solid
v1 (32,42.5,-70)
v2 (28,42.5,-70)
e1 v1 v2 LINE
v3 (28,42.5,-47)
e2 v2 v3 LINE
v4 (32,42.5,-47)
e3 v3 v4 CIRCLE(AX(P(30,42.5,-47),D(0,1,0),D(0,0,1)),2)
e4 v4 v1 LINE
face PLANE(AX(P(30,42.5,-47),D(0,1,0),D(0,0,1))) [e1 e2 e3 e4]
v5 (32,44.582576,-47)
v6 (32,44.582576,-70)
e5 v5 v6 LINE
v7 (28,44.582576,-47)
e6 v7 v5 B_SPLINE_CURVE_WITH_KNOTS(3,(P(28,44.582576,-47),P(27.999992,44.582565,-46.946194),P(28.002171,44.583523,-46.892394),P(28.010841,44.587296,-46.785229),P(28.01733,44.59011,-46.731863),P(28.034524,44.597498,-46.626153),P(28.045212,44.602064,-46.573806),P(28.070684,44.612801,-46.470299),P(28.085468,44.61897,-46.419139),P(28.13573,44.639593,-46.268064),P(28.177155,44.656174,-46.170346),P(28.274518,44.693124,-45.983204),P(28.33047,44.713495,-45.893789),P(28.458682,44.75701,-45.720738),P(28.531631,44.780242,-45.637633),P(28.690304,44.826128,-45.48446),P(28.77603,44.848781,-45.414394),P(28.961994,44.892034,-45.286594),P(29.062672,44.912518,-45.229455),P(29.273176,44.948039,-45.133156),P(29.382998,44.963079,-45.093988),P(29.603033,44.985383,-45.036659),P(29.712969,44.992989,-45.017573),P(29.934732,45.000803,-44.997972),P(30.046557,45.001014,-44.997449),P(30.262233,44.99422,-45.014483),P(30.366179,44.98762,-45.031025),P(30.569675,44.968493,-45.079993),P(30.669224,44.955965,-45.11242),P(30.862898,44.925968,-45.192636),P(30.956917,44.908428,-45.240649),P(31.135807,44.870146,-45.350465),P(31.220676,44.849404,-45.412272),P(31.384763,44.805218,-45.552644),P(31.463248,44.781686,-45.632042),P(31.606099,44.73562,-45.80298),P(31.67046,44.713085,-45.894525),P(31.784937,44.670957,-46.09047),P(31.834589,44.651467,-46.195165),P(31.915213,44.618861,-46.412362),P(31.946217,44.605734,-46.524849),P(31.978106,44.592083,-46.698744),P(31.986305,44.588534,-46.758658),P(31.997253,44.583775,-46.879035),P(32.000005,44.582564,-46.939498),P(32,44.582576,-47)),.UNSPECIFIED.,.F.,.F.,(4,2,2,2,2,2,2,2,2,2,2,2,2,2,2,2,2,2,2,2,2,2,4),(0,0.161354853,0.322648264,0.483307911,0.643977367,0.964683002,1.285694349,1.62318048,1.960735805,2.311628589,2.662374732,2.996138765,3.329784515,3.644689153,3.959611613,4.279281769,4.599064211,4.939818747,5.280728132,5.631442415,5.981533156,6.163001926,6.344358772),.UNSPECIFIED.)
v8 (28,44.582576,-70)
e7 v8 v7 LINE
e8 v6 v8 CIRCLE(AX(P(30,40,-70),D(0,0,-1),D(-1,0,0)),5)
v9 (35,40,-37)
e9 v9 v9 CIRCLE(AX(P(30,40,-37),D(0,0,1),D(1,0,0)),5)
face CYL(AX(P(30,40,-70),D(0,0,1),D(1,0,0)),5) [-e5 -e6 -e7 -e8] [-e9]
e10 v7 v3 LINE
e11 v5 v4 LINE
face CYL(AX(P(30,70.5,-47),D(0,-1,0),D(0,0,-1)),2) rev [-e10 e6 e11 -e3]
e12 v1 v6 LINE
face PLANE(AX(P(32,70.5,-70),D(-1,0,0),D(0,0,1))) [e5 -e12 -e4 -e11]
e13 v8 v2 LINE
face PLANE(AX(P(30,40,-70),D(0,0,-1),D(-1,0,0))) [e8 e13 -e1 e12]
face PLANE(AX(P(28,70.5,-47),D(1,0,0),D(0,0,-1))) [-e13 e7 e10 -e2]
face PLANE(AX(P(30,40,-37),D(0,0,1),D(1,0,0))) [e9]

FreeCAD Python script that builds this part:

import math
import FreeCAD as App
import Part
import Sketcher
Q = App.Units.Quantity


def edges_at(feature, points):
    """Names of the edges that pass closest to the given points."""
    edges = feature.Shape.Edges
    near = lambda p: min(range(len(edges)), key=lambda i: edges[i].distToShape(Part.Vertex(*p))[0])
    return sorted({f"Edge{near(p) + 1}" for p in points})

doc = App.newDocument("Part")
params = doc.addObject("Spreadsheet::Sheet", "Params")
for row, (alias, value) in enumerate([
    ("sketch1_width", "60 mm"),
    ("pad1_length", "42 mm"),
    ("fillet_radius", "5 mm"),
    ("fillet2_radius", "5 mm"),
    ("sketch2_width", "60 mm"),
    ("pad2_length", "38 mm"),
    ("fillet3_radius", "5 mm"),
    ("sketch3_diameter", "4.5 mm"),
    ("pocket1_length", "10 mm"),
    ("sketch4_diameter", "24 mm"),
    ("pad3_length", "4 mm"),
    ("sketch5_diameter", "10 mm"),
    ("pad4_length", "28 mm"),
    ("sketch6_radius", "2 mm"),
    ("sketch6_height", "23 mm"),
    ("pocket2_length", "28 mm"),
    ("pad5_length", "84 mm"),
    ("sketch8_diameter", "10 mm"),
    ("pad6_length", "5 mm"),
], start=1):
    params.set(f"A{row}", alias)
    params.set(f"B{row}", "=" + value)
    params.setAlias(f"B{row}", alias)

body = doc.addObject("PartDesign::Body", "Body")

# Sketch on XY plane
sketch1 = body.newObject("Sketcher::SketchObject", "Sketch")
sketch1.AttachmentSupport = (doc.getObject("XY_Plane"), [""])
sketch1.MapMode = "FlatFace"
sketch1.addGeometry([
    Part.LineSegment(App.Vector(0, 60, 0), App.Vector(0, 0, 0)),
    Part.LineSegment(App.Vector(0, 0, 0), App.Vector(60, 0, 0)),
    Part.LineSegment(App.Vector(60, 0, 0), App.Vector(60, 60, 0)),
    Part.LineSegment(App.Vector(60, 60, 0), App.Vector(0, 60, 0)),
], False)
sketch1.addConstraint([
    Sketcher.Constraint("Coincident", 0, 2, 1, 1),
    Sketcher.Constraint("Coincident", 1, 2, 2, 1),
    Sketcher.Constraint("Coincident", 2, 2, 3, 1),
    Sketcher.Constraint("Coincident", 3, 2, 0, 1),
    Sketcher.Constraint("Vertical", 0),
    Sketcher.Constraint("Horizontal", 1),
    Sketcher.Constraint("Vertical", 2),
    Sketcher.Constraint("Horizontal", 3),
    Sketcher.Constraint("Coincident", 0, 2, -1, 1),
    Sketcher.Constraint("Equal", 3, 0),
    Sketcher.Constraint("DistanceX", 1, 1, 1, 2, Q("60 mm")),
])
sketch1.setExpression("Constraints[10]", "Params.sketch1_width")
pad1 = body.newObject("PartDesign::Pad", "Pad")
pad1.Profile = sketch1
pad1.setExpression("Length", "Params.pad1_length")
doc.recompute()

fillet = body.newObject("PartDesign::Fillet", "Fillet")
fillet.Base = (pad1, edges_at(pad1, [
    (0, 60, 21),
    (60, 60, 21),
    (60, 0, 21),
    (0, 0, 21),
]))
fillet.setExpression("Radius", "Params.fillet_radius")
doc.recompute()

fillet2 = body.newObject("PartDesign::Fillet", "Fillet001")
fillet2.Base = (fillet, edges_at(fillet, [
    (30, 0, 42),
    (0, 30, 42),
    (60, 30, 42),
    (30, 60, 42),
    (58.536, 58.536, 42),
    (1.464, 58.536, 42),
    (58.536, 1.464, 42),
    (1.464, 1.464, 42),
]))
fillet2.setExpression("Radius", "Params.fillet2_radius")
body2 = doc.addObject("PartDesign::Body", "Body001")

# Sketch on XY plane
sketch2 = body2.newObject("Sketcher::SketchObject", "Sketch001")
sketch2.AttachmentSupport = (doc.getObject("XY_Plane001"), [""])
sketch2.MapMode = "FlatFace"
sketch2.addGeometry([
    Part.LineSegment(App.Vector(60, 60, 0), App.Vector(60, 0, 0)),
    Part.LineSegment(App.Vector(60, 0, 0), App.Vector(0, 0, 0)),
    Part.LineSegment(App.Vector(0, 0, 0), App.Vector(0, 60, 0)),
    Part.LineSegment(App.Vector(0, 60, 0), App.Vector(60, 60, 0)),
], False)
sketch2.addConstraint([
    Sketcher.Constraint("Coincident", 0, 2, 1, 1),
    Sketcher.Constraint("Coincident", 1, 2, 2, 1),
    Sketcher.Constraint("Coincident", 2, 2, 3, 1),
    Sketcher.Constraint("Coincident", 3, 2, 0, 1),
    Sketcher.Constraint("Vertical", 0),
    Sketcher.Constraint("Horizontal", 1),
    Sketcher.Constraint("Vertical", 2),
    Sketcher.Constraint("Horizontal", 3),
    Sketcher.Constraint("Coincident", 1, 2, -1, 1),
    Sketcher.Constraint("Equal", 3, 0),
    Sketcher.Constraint("DistanceX", 1, 2, 1, 1, Q("60 mm")),
])
sketch2.setExpression("Constraints[10]", "Params.sketch2_width")
pad2 = body2.newObject("PartDesign::Pad", "Pad001")
pad2.Profile = sketch2
pad2.setExpression("Length", "Params.pad2_length")
pad2.Reversed = True
doc.recompute()

fillet3 = body2.newObject("PartDesign::Fillet", "Fillet002")
fillet3.Base = (pad2, edges_at(pad2, [
    (60, 0, -19),
    (60, 60, -19),
    (0, 60, -19),
    (0, 0, -19),
]))
fillet3.setExpression("Radius", "Params.fillet3_radius")

# Sketch on XY plane
sketch3 = body2.newObject("Sketcher::SketchObject", "Sketch002")
sketch3.AttachmentSupport = (doc.getObject("XY_Plane001"), [""])
sketch3.MapMode = "FlatFace"
sketch3.AttachmentOffset = App.Placement(App.Vector(0, 0, -38), App.Rotation())
sketch3.addGeometry([
    Part.Circle(App.Vector(5.3, 54.7, 0), App.Vector(0, 0, 1), 2.2),
    Part.Circle(App.Vector(54.7, 54.7, 0), App.Vector(0, 0, 1), 2.2),
    Part.Circle(App.Vector(54.7, 5.3, 0), App.Vector(0, 0, 1), 2.2),
    Part.Circle(App.Vector(5.3, 5.3, 0), App.Vector(0, 0, 1), 2.2),
], False)
sketch3.addConstraint([
    Sketcher.Constraint("Equal", 0, 1),
    Sketcher.Constraint("Equal", 1, 2),
    Sketcher.Constraint("Equal", 2, 3),
    Sketcher.Constraint("Horizontal", 0, 3, 1, 3),
    Sketcher.Constraint("Horizontal", 2, 3, 3, 3),
    Sketcher.Constraint("Vertical", 1, 3, 2, 3),
    Sketcher.Constraint("Vertical", 0, 3, 3, 3),
    Sketcher.Constraint("Diameter", 0, Q("4.5 mm")),
    Sketcher.Constraint("DistanceX", -1, 1, 0, 3, Q("5.251263 mm")),
    Sketcher.Constraint("DistanceY", -1, 1, 0, 3, Q("54.748737 mm")),
    Sketcher.Constraint("DistanceX", -1, 1, 1, 3, Q("54.748737 mm")),
    Sketcher.Constraint("DistanceY", -1, 1, 2, 3, Q("5.251263 mm")),
])
sketch3.setExpression("Constraints[7]", "Params.sketch3_diameter")
pocket1 = body2.newObject("PartDesign::Pocket", "Pocket")
pocket1.Profile = sketch3
pocket1.setExpression("Length", "Params.pocket1_length")
pocket1.Reversed = True

# Sketch on XY plane
sketch4 = body2.newObject("Sketcher::SketchObject", "Sketch003")
sketch4.AttachmentSupport = (doc.getObject("XY_Plane001"), [""])
sketch4.MapMode = "FlatFace"
sketch4.AttachmentOffset = App.Placement(App.Vector(0, 0, -38), App.Rotation())
sketch4.addGeometry(Part.Circle(App.Vector(30, 40, 0), App.Vector(0, 0, 1), 12), False)
sketch4.addConstraint([
    Sketcher.Constraint("Diameter", 0, Q("24 mm")),
    Sketcher.Constraint("DistanceX", -1, 1, 0, 3, Q("30 mm")),
    Sketcher.Constraint("DistanceY", -1, 1, 0, 3, Q("40 mm")),
])
sketch4.setExpression("Constraints[0]", "Params.sketch4_diameter")
pad3 = body2.newObject("PartDesign::Pad", "Pad002")
pad3.Profile = sketch4
pad3.setExpression("Length", "Params.pad3_length")
pad3.Reversed = True

# Sketch on XY plane
sketch5 = body2.newObject("Sketcher::SketchObject", "Sketch004")
sketch5.AttachmentSupport = (doc.getObject("XY_Plane001"), [""])
sketch5.MapMode = "FlatFace"
sketch5.AttachmentOffset = App.Placement(App.Vector(0, 0, -42), App.Rotation())
sketch5.addGeometry(Part.Circle(App.Vector(30, 40, 0), App.Vector(0, 0, 1), 5), False)
sketch5.addConstraint([
    Sketcher.Constraint("Diameter", 0, Q("10 mm")),
    Sketcher.Constraint("DistanceX", -1, 1, 0, 3, Q("30 mm")),
    Sketcher.Constraint("DistanceY", -1, 1, 0, 3, Q("40 mm")),
])
sketch5.setExpression("Constraints[0]", "Params.sketch5_diameter")
pad4 = body2.newObject("PartDesign::Pad", "Pad003")
pad4.Profile = sketch5
pad4.setExpression("Length", "Params.pad4_length")
pad4.Reversed = True

# Sketch on XZ plane
sketch6 = body2.newObject("Sketcher::SketchObject", "Sketch005")
sketch6.AttachmentSupport = (doc.getObject("XZ_Plane001"), [""])
sketch6.MapMode = "FlatFace"
sketch6.AttachmentOffset = App.Placement(App.Vector(0, 0, -42.5), App.Rotation())
sketch6.addGeometry([
    Part.LineSegment(App.Vector(28, -70, 0), App.Vector(28, -47, 0)),
    Part.ArcOfCircle(Part.Circle(App.Vector(30, -47, 0), App.Vector(0, 0, 1), 2), math.radians(0), math.radians(180)),
    Part.LineSegment(App.Vector(32, -47, 0), App.Vector(32, -70, 0)),
    Part.LineSegment(App.Vector(32, -70, 0), App.Vector(28, -70, 0)),
], False)
sketch6.addConstraint([
    Sketcher.Constraint("Tangent", 0, 2, 1, 2),
    Sketcher.Constraint("Tangent", 1, 1, 2, 1),
    Sketcher.Constraint("Coincident", 2, 2, 3, 1),
    Sketcher.Constraint("Coincident", 3, 2, 0, 1),
    Sketcher.Constraint("Vertical", 0),
    Sketcher.Constraint("Vertical", 2),
    Sketcher.Constraint("Horizontal", 3),
    Sketcher.Constraint("Radius", 1, Q("2 mm")),
    Sketcher.Constraint("DistanceY", 0, 1, 0, 2, Q("23 mm")),
    Sketcher.Constraint("DistanceX", -1, 1, 1, 3, Q("30 mm")),
    Sketcher.Constraint("DistanceY", 1, 3, -1, 1, Q("47 mm")),
])
sketch6.setExpression("Constraints[7]", "Params.sketch6_radius")
sketch6.setExpression("Constraints[8]", "Params.sketch6_height")
pocket2 = body2.newObject("PartDesign::Pocket", "Pocket001")
pocket2.Profile = sketch6
pocket2.setExpression("Length", "Params.pocket2_length")
body3 = doc.addObject("PartDesign::Body", "Body002")

# Sketch on XY plane
sketch7 = body3.newObject("Sketcher::SketchObject", "Sketch006")
sketch7.AttachmentSupport = (doc.getObject("XY_Plane002"), [""])
sketch7.MapMode = "FlatFace"
sketch7.AttachmentOffset = App.Placement(App.Vector(0, 0, -42), App.Rotation())
sketch7.addGeometry([
    Part.LineSegment(App.Vector(75, 69, 0), App.Vector(75, -7, 0)),
    Part.LineSegment(App.Vector(75, -7, 0), App.Vector(-8, -7, 0)),
    Part.LineSegment(App.Vector(-8, -7, 0), App.Vector(-8, 69, 0)),
    Part.LineSegment(App.Vector(-8, 69, 0), App.Vector(75, 69, 0)),
], False)
sketch7.addConstraint([
    Sketcher.Constraint("Coincident", 0, 2, 1, 1),
    Sketcher.Constraint("Coincident", 1, 2, 2, 1),
    Sketcher.Constraint("Coincident", 2, 2, 3, 1),
    Sketcher.Constraint("Coincident", 3, 2, 0, 1),
    Sketcher.Constraint("Vertical", 0),
    Sketcher.Constraint("Horizontal", 1),
    Sketcher.Constraint("Vertical", 2),
    Sketcher.Constraint("Horizontal", 3),
    Sketcher.Constraint("DistanceX", 1, 2, 1, 1, Q("83.407233 mm")),
    Sketcher.Constraint("DistanceY", 0, 2, 0, 1, Q("75.183985 mm")),
    Sketcher.Constraint("DistanceY", -1, 1, 2, 2, Q("68.59053 mm")),
    Sketcher.Constraint("DistanceX", -1, 1, 0, 2, Q("75.227866 mm")),
])
pad5 = body3.newObject("PartDesign::Pad", "Pad004")
pad5.Profile = sketch7
pad5.setExpression("Length", "Params.pad5_length")
doc.recompute()

body4 = doc.addObject("PartDesign::Body", "Body003")
body4.BaseFeature = body3
boolean = body.newObject("PartDesign::Boolean", "Boolean")
boolean.Type = "Cut"
boolean.addObjects([body4])
doc.recompute()

boolean2 = body2.newObject("PartDesign::Boolean", "Boolean001")
boolean2.Type = "Cut"
boolean2.addObjects([body3])

# Sketch on XY plane
sketch8 = body2.newObject("Sketcher::SketchObject", "Sketch007")
sketch8.AttachmentSupport = (doc.getObject("XY_Plane001"), [""])
sketch8.MapMode = "FlatFace"
sketch8.AttachmentOffset = App.Placement(App.Vector(0, 0, -42), App.Rotation())
sketch8.addGeometry(Part.Circle(App.Vector(30, 40, 0), App.Vector(0, 0, 1), 5), False)
sketch8.addConstraint([
    Sketcher.Constraint("Diameter", 0, Q("10 mm")),
    Sketcher.Constraint("DistanceX", -1, 1, 0, 3, Q("30 mm")),
    Sketcher.Constraint("DistanceY", -1, 1, 0, 3, Q("40 mm")),
])
sketch8.setExpression("Constraints[0]", "Params.sketch8_diameter")
pad6 = body2.newObject("PartDesign::Pad", "Pad005")
pad6.Profile = sketch8
pad6.setExpression("Length", "Params.pad6_length")

doc.recompute()
